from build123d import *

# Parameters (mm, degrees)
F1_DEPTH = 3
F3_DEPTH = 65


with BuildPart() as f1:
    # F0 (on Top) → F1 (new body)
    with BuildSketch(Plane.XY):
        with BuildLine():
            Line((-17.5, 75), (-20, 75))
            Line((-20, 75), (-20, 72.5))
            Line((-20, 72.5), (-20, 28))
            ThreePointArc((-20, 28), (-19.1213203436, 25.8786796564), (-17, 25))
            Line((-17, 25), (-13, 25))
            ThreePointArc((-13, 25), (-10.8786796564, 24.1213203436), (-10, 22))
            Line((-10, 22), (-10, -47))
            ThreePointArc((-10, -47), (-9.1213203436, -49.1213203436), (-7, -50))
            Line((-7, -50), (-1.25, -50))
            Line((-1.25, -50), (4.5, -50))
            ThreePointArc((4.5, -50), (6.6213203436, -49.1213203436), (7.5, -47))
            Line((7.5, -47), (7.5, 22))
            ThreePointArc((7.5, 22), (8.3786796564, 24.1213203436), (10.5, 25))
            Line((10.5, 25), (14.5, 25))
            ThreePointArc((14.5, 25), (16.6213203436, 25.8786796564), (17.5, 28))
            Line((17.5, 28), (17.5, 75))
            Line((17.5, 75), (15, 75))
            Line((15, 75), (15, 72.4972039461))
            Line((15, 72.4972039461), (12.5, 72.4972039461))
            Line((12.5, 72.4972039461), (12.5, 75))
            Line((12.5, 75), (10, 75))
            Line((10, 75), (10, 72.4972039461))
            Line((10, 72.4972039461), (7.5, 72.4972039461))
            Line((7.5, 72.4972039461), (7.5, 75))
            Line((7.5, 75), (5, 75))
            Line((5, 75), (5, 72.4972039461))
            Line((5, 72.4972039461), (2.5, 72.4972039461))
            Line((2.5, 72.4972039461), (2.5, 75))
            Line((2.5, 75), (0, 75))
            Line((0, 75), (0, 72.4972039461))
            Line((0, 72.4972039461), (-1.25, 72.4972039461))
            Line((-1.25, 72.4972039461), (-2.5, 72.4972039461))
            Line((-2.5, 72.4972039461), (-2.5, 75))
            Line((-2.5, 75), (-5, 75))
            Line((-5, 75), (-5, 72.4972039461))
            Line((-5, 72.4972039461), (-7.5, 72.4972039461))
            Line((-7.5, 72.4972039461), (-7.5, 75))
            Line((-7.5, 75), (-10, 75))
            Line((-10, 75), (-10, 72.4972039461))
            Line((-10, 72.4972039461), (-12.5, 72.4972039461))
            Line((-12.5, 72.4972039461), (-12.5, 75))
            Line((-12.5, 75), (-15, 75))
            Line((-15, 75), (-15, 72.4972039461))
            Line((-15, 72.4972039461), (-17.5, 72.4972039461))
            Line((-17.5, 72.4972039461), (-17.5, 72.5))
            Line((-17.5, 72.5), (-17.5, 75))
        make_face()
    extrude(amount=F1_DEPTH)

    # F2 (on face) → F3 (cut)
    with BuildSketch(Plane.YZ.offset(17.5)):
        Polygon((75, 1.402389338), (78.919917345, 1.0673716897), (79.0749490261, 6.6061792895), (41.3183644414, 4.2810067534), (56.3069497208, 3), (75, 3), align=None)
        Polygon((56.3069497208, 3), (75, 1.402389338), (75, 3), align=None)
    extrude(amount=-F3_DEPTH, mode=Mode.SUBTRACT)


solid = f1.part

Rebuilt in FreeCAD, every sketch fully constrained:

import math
import FreeCAD as App
import Part
import Sketcher

doc = App.newDocument("Part")
body = doc.addObject("PartDesign::Body", "Body")

# Sketch on XY plane
sketch1 = body.newObject("Sketcher::SketchObject", "Sketch")
sketch1.AttachmentSupport = (doc.getObject("XY_Plane"), [""])
sketch1.MapMode = "FlatFace"
sketch1.addGeometry([
    Part.LineSegment(App.Vector(-17.5, 75, 0), App.Vector(-20, 75, 0)),  # 0
    Part.LineSegment(App.Vector(-20, 75, 0), App.Vector(-20, 28, 0)),  # 1
    Part.ArcOfCircle(Part.Circle(App.Vector(-17, 28, 0), App.Vector(0, 0, 1), 3), math.radians(180), math.radians(270)),  # 2
    Part.LineSegment(App.Vector(-17, 25, 0), App.Vector(-13, 25, 0)),  # 3
    Part.ArcOfCircle(Part.Circle(App.Vector(-13, 22, 0), App.Vector(0, 0, 1), 3), math.radians(0), math.radians(90)),  # 4
    Part.LineSegment(App.Vector(-10, 22, 0), App.Vector(-10, -47, 0)),  # 5
    Part.ArcOfCircle(Part.Circle(App.Vector(-7, -47, 0), App.Vector(0, 0, 1), 3), math.radians(180), math.radians(270)),  # 6
    Part.LineSegment(App.Vector(-7, -50, 0), App.Vector(4.5, -50, 0)),  # 7
    Part.ArcOfCircle(Part.Circle(App.Vector(4.5, -47, 0), App.Vector(0, 0, 1), 3), math.radians(-90), math.radians(0)),  # 8
    Part.LineSegment(App.Vector(7.5, -47, 0), App.Vector(7.5, 22, 0)),  # 9
    Part.ArcOfCircle(Part.Circle(App.Vector(10.5, 22, 0), App.Vector(0, 0, 1), 3), math.radians(90), math.radians(180)),  # 10
    Part.LineSegment(App.Vector(10.5, 25, 0), App.Vector(14.5, 25, 0)),  # 11
    Part.ArcOfCircle(Part.Circle(App.Vector(14.5, 28, 0), App.Vector(0, 0, 1), 3), math.radians(-90), math.radians(0)),  # 12
    Part.LineSegment(App.Vector(17.5, 28, 0), App.Vector(17.5, 75, 0)),  # 13
    Part.LineSegment(App.Vector(17.5, 75, 0), App.Vector(15, 75, 0)),  # 14
    Part.LineSegment(App.Vector(15, 75, 0), App.Vector(15, 72.497204, 0)),  # 15
    Part.LineSegment(App.Vector(15, 72.497204, 0), App.Vector(12.5, 72.497204, 0)),  # 16
    Part.LineSegment(App.Vector(12.5, 72.497204, 0), App.Vector(12.5, 75, 0)),  # 17
    Part.LineSegment(App.Vector(12.5, 75, 0), App.Vector(10, 75, 0)),  # 18
    Part.LineSegment(App.Vector(10, 75, 0), App.Vector(10, 72.497204, 0)),  # 19
    Part.LineSegment(App.Vector(10, 72.497204, 0), App.Vector(7.5, 72.497204, 0)),  # 20
    Part.LineSegment(App.Vector(7.5, 72.497204, 0), App.Vector(7.5, 75, 0)),  # 21
    Part.LineSegment(App.Vector(7.5, 75, 0), App.Vector(5, 75, 0)),  # 22
    Part.LineSegment(App.Vector(5, 75, 0), App.Vector(5, 72.497204, 0)),  # 23
    Part.LineSegment(App.Vector(5, 72.497204, 0), App.Vector(2.5, 72.497204, 0)),  # 24
    Part.LineSegment(App.Vector(2.5, 72.497204, 0), App.Vector(2.5, 75, 0)),  # 25
    Part.LineSegment(App.Vector(2.5, 75, 0), App.Vector(0, 75, 0)),  # 26
    Part.LineSegment(App.Vector(0, 75, 0), App.Vector(0, 72.497204, 0)),  # 27
    Part.LineSegment(App.Vector(0, 72.497204, 0), App.Vector(-2.5, 72.497204, 0)),  # 28
    Part.LineSegment(App.Vector(-2.5, 72.497204, 0), App.Vector(-2.5, 75, 0)),  # 29
    Part.LineSegment(App.Vector(-2.5, 75, 0), App.Vector(-5, 75, 0)),  # 30
    Part.LineSegment(App.Vector(-5, 75, 0), App.Vector(-5, 72.497204, 0)),  # 31
    Part.LineSegment(App.Vector(-5, 72.497204, 0), App.Vector(-7.5, 72.497204, 0)),  # 32
    Part.LineSegment(App.Vector(-7.5, 72.497204, 0), App.Vector(-7.5, 75, 0)),  # 33
    Part.LineSegment(App.Vector(-7.5, 75, 0), App.Vector(-10, 75, 0)),  # 34
    Part.LineSegment(App.Vector(-10, 75, 0), App.Vector(-10, 72.497204, 0)),  # 35
    Part.LineSegment(App.Vector(-10, 72.497204, 0), App.Vector(-12.5, 72.497204, 0)),  # 36
    Part.LineSegment(App.Vector(-12.5, 72.497204, 0), App.Vector(-12.5, 75, 0)),  # 37
    Part.LineSegment(App.Vector(-12.5, 75, 0), App.Vector(-15, 75, 0)),  # 38
    Part.LineSegment(App.Vector(-15, 75, 0), App.Vector(-15, 72.497204, 0)),  # 39
    Part.LineSegment(App.Vector(-15, 72.497204, 0), App.Vector(-17.5, 72.497204, 0)),  # 40
    Part.LineSegment(App.Vector(-17.5, 72.497204, 0), App.Vector(-17.5, 75, 0)),  # 41
], False)
sketch1.addConstraint([
    Sketcher.Constraint("Coincident", 0, 2, 1, 1),
    Sketcher.Constraint("Tangent", 1, 2, 2, 1),
    Sketcher.Constraint("Tangent", 2, 2, 3, 1),
    Sketcher.Constraint("Tangent", 3, 2, 4, 2),
    Sketcher.Constraint("Tangent", 4, 1, 5, 1),
    Sketcher.Constraint("Tangent", 5, 2, 6, 1),
    Sketcher.Constraint("Tangent", 6, 2, 7, 1),
    Sketcher.Constraint("Tangent", 7, 2, 8, 1),
    Sketcher.Constraint("Tangent", 8, 2, 9, 1),
    Sketcher.Constraint("Tangent", 9, 2, 10, 2),
    Sketcher.Constraint("Tangent", 10, 1, 11, 1),
    Sketcher.Constraint("Tangent", 11, 2, 12, 1),
    Sketcher.Constraint("Tangent", 12, 2, 13, 1),
    Sketcher.Constraint("Coincident", 13, 2, 14, 1),
    Sketcher.Constraint("Coincident", 14, 2, 15, 1),
    Sketcher.Constraint("Coincident", 15, 2, 16, 1),
    Sketcher.Constraint("Coincident", 16, 2, 17, 1),
    Sketcher.Constraint("Coincident", 17, 2, 18, 1),
    Sketcher.Constraint("Coincident", 18, 2, 19, 1),
    Sketcher.Constraint("Coincident", 19, 2, 20, 1),
    Sketcher.Constraint("Coincident", 20, 2, 21, 1),
    Sketcher.Constraint("Coincident", 21, 2, 22, 1),
    Sketcher.Constraint("Coincident", 22, 2, 23, 1),
    Sketcher.Constraint("Coincident", 23, 2, 24, 1),
    Sketcher.Constraint("Coincident", 24, 2, 25, 1),
    Sketcher.Constraint("Coincident", 25, 2, 26, 1),
    Sketcher.Constraint("Coincident", 26, 2, 27, 1),
    Sketcher.Constraint("Coincident", 27, 2, 28, 1),
    Sketcher.Constraint("Coincident", 28, 2, 29, 1),
    Sketcher.Constraint("Coincident", 29, 2, 30, 1),
    Sketcher.Constraint("Coincident", 30, 2, 31, 1),
    Sketcher.Constraint("Coincident", 31, 2, 32, 1),
    Sketcher.Constraint("Coincident", 32, 2, 33, 1),
    Sketcher.Constraint("Coincident", 33, 2, 34, 1),
    Sketcher.Constraint("Coincident", 34, 2, 35, 1),
    Sketcher.Constraint("Coincident", 35, 2, 36, 1),
    Sketcher.Constraint("Coincident", 36, 2, 37, 1),
    Sketcher.Constraint("Coincident", 37, 2, 38, 1),
    Sketcher.Constraint("Coincident", 38, 2, 39, 1),
    Sketcher.Constraint("Coincident", 39, 2, 40, 1),
    Sketcher.Constraint("Coincident", 40, 2, 41, 1),
    Sketcher.Constraint("Coincident", 41, 2, 0, 1),
    Sketcher.Constraint("Horizontal", 0),
    Sketcher.Constraint("Vertical", 1),
    Sketcher.Constraint("Horizontal", 3),
    Sketcher.Constraint("Vertical", 5),
    Sketcher.Constraint("Horizontal", 7),
    Sketcher.Constraint("Vertical", 9),
    Sketcher.Constraint("Horizontal", 11),
    Sketcher.Constraint("Vertical", 13),
    Sketcher.Constraint("Horizontal", 14),
    Sketcher.Constraint("Vertical", 15),
    Sketcher.Constraint("Horizontal", 16),
    Sketcher.Constraint("Vertical", 17),
    Sketcher.Constraint("Horizontal", 18),
    Sketcher.Constraint("Vertical", 19),
    Sketcher.Constraint("Horizontal", 20),
    Sketcher.Constraint("Vertical", 21),
    Sketcher.Constraint("Horizontal", 22),
    Sketcher.Constraint("Vertical", 23),
    Sketcher.Constraint("Horizontal", 24),
    Sketcher.Constraint("Vertical", 25),
    Sketcher.Constraint("Horizontal", 26),
    Sketcher.Constraint("Vertical", 27),
    Sketcher.Constraint("Horizontal", 28),
    Sketcher.Constraint("Vertical", 29),
    Sketcher.Constraint("Horizontal", 30),
    Sketcher.Constraint("Vertical", 31),
    Sketcher.Constraint("Horizontal", 32),
    Sketcher.Constraint("Vertical", 33),
    Sketcher.Constraint("Horizontal", 34),
    Sketcher.Constraint("Vertical", 35),
    Sketcher.Constraint("Horizontal", 36),
    Sketcher.Constraint("Vertical", 37),
    Sketcher.Constraint("Horizontal", 38),
    Sketcher.Constraint("Vertical", 39),
    Sketcher.Constraint("Horizontal", 40),
    Sketcher.Constraint("Vertical", 41),
    Sketcher.Constraint("Equal", 2, 4),
    Sketcher.Constraint("Equal", 4, 6),
    Sketcher.Constraint("Equal", 6, 8),
    Sketcher.Constraint("Equal", 8, 10),
    Sketcher.Constraint("Equal", 10, 12),
    Sketcher.Constraint("Symmetric", 24, 2, 28, 2, -2),
    Sketcher.Constraint("Symmetric", 22, 2, 30, 2, -2),
    Sketcher.Constraint("Symmetric", 20, 2, 32, 2, -2),
    Sketcher.Constraint("Symmetric", 18, 2, 34, 2, -2),
    Sketcher.Constraint("Symmetric", 16, 2, 36, 2, -2),
    Sketcher.Constraint("Symmetric", 14, 2, 38, 2, -2),
    Sketcher.Constraint("Symmetric", 13, 2, 41, 2, -2),
    Sketcher.Constraint("PointOnObject", 26, 2, -2),
    Sketcher.Constraint("Horizontal", 4, 3, 10, 3),
    Sketcher.Constraint("Horizontal", 14, 2, 17, 2),
    Sketcher.Constraint("Horizontal", 16, 2, 19, 2),
    Sketcher.Constraint("Horizontal", 18, 2, 21, 2),
    Sketcher.Constraint("Horizontal", 20, 2, 23, 2),
    Sketcher.Constraint("Horizontal", 22, 2, 25, 2),
    Sketcher.Constraint("Horizontal", 36, 2, 39, 2),
    Sketcher.Constraint("Vertical", 9, 2, 20, 2),
    Sketcher.Constraint("Vertical", 5, 2, 34, 2),
    Sketcher.Constraint("Equal", 3, 11),
    Sketcher.Constraint("Equal", 0, 14),
    Sketcher.Constraint("Equal", 14, 16),
    Sketcher.Constraint("Equal", 16, 18),
    Sketcher.Constraint("Equal", 20, 22),
    Sketcher.Constraint("Equal", 22, 24),
    Sketcher.Constraint("Equal", 24, 26),
    Sketcher.Constraint("Radius", 2, 3.0),
    Sketcher.Constraint("DistanceX", 3, 1, 3, 2, 4.0),
    Sketcher.Constraint("DistanceY", 1, 2, 1, 1, 47.0),
    Sketcher.Constraint("DistanceY", 5, 2, 5, 1, 69.0),
    Sketcher.Constraint("DistanceY", -1, 1, 2, 3, 28.0),
    Sketcher.Constraint("DistanceY", 15, 2, 15, 1, 2.502796),
])
pad1 = body.newObject("PartDesign::Pad", "Pad")
pad1.Profile = sketch1
pad1.Length = 3

# Sketch on YZ plane
sketch2 = body.newObject("Sketcher::SketchObject", "Sketch001")
sketch2.AttachmentSupport = (doc.getObject("YZ_Plane"), [""])
sketch2.MapMode = "FlatFace"
sketch2.AttachmentOffset = App.Placement(App.Vector(0, 0, 17.5), App.Rotation())
sketch2.addGeometry([
    Part.LineSegment(App.Vector(75, 1.402389, 0), App.Vector(78.919917, 1.067372, 0)),  # 0
    Part.LineSegment(App.Vector(78.919917, 1.067372, 0), App.Vector(79.074949, 6.606179, 0)),  # 1
    Part.LineSegment(App.Vector(79.074949, 6.606179, 0), App.Vector(41.318364, 4.281007, 0)),  # 2
    Part.LineSegment(App.Vector(41.318364, 4.281007, 0), App.Vector(56.30695, 3, 0)),  # 3
    Part.LineSegment(App.Vector(56.30695, 3, 0), App.Vector(75, 1.402389, 0)),  # 4
], False)
sketch2.addConstraint([
    Sketcher.Constraint("Coincident", 0, 2, 1, 1),
    Sketcher.Constraint("Coincident", 1, 2, 2, 1),
    Sketcher.Constraint("Coincident", 2, 2, 3, 1),
    Sketcher.Constraint("Coincident", 3, 2, 4, 1),
    Sketcher.Constraint("Coincident", 4, 2, 0, 1),
    Sketcher.Constraint("Parallel", 0, 3),
    Sketcher.Constraint("Parallel", 3, 4),
    Sketcher.Constraint("DistanceY", -1, 1, 3, 2, 3.0),
    Sketcher.Constraint("DistanceX", -1, 1, 4, 2, 75.0),
    Sketcher.Constraint("DistanceX", 3, 2, 1, 2, 22.767999),
    Sketcher.Constraint("DistanceY", -1, 1, 0, 2, 1.067372),
    Sketcher.Constraint("DistanceX", -1, 1, 1, 2, 79.074949),
    Sketcher.Constraint("DistanceY", -1, 1, 1, 2, 6.606179),
    Sketcher.Constraint("DistanceY", -1, 1, 4, 2, 1.402389),
    Sketcher.Constraint("Distance", 2, 37.828113),
])
pocket1 = body.newObject("PartDesign::Pocket", "Pocket")
pocket1.Profile = sketch2
pocket1.Length = 65

doc.recompute()
